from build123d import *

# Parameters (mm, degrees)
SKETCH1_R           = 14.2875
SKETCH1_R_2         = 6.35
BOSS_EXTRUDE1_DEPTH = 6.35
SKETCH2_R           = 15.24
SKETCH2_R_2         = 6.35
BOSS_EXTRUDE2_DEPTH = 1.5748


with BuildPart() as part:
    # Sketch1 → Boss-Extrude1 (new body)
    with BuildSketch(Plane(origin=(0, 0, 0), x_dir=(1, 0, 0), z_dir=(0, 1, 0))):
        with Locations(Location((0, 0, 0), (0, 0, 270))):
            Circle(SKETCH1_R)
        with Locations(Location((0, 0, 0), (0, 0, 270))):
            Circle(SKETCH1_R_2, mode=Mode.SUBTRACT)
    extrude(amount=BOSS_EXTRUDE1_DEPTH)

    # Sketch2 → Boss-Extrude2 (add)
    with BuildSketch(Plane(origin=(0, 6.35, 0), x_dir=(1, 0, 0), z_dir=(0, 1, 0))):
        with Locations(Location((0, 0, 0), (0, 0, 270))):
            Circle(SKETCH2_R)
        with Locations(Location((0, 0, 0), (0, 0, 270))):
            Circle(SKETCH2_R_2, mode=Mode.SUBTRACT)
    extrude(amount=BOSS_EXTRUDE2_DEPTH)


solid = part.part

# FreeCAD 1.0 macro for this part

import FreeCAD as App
import Part
import Sketcher
from FreeCAD import Vector
Q = App.Units.Quantity

doc = App.newDocument("Part")
body = doc.addObject("PartDesign::Body", "Body")

# Sketch on XZ plane
sketch1 = doc.addObject("Sketcher::SketchObject", "Sketch")
body.addObject(sketch1)
sketch1.AttachmentSupport = (doc.XZ_Plane, [""])
sketch1.MapMode = "FlatFace"
sketch1.addGeometry(Part.Circle(Vector(0, 0, 0), Vector(0, 0, 1), 14), False)
sketch1.addGeometry(Part.Circle(Vector(0, 0, 0), Vector(0, 0, 1), 6), False)
sketch1.addConstraint(Sketcher.Constraint("Coincident", 0, 3, -1, 1))
sketch1.addConstraint(Sketcher.Constraint("Coincident", 1, 3, -1, 1))
sketch1.addConstraint(Sketcher.Constraint("Diameter", 1, Q("0.5 in")))
sketch1.addConstraint(Sketcher.Constraint("Diameter", 0, Q("1.125 in")))
pad1 = doc.addObject("PartDesign::Pad", "Pad")
body.addObject(pad1)
pad1.Profile = sketch1
pad1.Length = Q("0.25 in")
pad1.Reversed = True

# Sketch on XZ plane
sketch2 = doc.addObject("Sketcher::SketchObject", "Sketch001")
body.addObject(sketch2)
sketch2.AttachmentSupport = (doc.XZ_Plane, [""])
sketch2.MapMode = "FlatFace"
sketch2.AttachmentOffset = App.Placement(Vector(0, 0, -0.25 * 25.4), App.Rotation())
sketch2.addGeometry(Part.Circle(Vector(0, 0, 0), Vector(0, 0, 1), 15), False)
sketch2.addGeometry(Part.Circle(Vector(0, 0, 0), Vector(0, 0, 1), 6), False)
sketch2.addConstraint(Sketcher.Constraint("Coincident", 0, 3, -1, 1))
sketch2.addConstraint(Sketcher.Constraint("Coincident", 1, 3, -1, 1))
sketch2.addConstraint(Sketcher.Constraint("Diameter", 0, Q("1.2 in")))
sketch2.addConstraint(Sketcher.Constraint("Diameter", 1, Q("0.5 in")))
pad2 = doc.addObject("PartDesign::Pad", "Pad001")
body.addObject(pad2)
pad2.Profile = sketch2
pad2.Length = Q("0.062 in")
pad2.Reversed = True

doc.recompute()
